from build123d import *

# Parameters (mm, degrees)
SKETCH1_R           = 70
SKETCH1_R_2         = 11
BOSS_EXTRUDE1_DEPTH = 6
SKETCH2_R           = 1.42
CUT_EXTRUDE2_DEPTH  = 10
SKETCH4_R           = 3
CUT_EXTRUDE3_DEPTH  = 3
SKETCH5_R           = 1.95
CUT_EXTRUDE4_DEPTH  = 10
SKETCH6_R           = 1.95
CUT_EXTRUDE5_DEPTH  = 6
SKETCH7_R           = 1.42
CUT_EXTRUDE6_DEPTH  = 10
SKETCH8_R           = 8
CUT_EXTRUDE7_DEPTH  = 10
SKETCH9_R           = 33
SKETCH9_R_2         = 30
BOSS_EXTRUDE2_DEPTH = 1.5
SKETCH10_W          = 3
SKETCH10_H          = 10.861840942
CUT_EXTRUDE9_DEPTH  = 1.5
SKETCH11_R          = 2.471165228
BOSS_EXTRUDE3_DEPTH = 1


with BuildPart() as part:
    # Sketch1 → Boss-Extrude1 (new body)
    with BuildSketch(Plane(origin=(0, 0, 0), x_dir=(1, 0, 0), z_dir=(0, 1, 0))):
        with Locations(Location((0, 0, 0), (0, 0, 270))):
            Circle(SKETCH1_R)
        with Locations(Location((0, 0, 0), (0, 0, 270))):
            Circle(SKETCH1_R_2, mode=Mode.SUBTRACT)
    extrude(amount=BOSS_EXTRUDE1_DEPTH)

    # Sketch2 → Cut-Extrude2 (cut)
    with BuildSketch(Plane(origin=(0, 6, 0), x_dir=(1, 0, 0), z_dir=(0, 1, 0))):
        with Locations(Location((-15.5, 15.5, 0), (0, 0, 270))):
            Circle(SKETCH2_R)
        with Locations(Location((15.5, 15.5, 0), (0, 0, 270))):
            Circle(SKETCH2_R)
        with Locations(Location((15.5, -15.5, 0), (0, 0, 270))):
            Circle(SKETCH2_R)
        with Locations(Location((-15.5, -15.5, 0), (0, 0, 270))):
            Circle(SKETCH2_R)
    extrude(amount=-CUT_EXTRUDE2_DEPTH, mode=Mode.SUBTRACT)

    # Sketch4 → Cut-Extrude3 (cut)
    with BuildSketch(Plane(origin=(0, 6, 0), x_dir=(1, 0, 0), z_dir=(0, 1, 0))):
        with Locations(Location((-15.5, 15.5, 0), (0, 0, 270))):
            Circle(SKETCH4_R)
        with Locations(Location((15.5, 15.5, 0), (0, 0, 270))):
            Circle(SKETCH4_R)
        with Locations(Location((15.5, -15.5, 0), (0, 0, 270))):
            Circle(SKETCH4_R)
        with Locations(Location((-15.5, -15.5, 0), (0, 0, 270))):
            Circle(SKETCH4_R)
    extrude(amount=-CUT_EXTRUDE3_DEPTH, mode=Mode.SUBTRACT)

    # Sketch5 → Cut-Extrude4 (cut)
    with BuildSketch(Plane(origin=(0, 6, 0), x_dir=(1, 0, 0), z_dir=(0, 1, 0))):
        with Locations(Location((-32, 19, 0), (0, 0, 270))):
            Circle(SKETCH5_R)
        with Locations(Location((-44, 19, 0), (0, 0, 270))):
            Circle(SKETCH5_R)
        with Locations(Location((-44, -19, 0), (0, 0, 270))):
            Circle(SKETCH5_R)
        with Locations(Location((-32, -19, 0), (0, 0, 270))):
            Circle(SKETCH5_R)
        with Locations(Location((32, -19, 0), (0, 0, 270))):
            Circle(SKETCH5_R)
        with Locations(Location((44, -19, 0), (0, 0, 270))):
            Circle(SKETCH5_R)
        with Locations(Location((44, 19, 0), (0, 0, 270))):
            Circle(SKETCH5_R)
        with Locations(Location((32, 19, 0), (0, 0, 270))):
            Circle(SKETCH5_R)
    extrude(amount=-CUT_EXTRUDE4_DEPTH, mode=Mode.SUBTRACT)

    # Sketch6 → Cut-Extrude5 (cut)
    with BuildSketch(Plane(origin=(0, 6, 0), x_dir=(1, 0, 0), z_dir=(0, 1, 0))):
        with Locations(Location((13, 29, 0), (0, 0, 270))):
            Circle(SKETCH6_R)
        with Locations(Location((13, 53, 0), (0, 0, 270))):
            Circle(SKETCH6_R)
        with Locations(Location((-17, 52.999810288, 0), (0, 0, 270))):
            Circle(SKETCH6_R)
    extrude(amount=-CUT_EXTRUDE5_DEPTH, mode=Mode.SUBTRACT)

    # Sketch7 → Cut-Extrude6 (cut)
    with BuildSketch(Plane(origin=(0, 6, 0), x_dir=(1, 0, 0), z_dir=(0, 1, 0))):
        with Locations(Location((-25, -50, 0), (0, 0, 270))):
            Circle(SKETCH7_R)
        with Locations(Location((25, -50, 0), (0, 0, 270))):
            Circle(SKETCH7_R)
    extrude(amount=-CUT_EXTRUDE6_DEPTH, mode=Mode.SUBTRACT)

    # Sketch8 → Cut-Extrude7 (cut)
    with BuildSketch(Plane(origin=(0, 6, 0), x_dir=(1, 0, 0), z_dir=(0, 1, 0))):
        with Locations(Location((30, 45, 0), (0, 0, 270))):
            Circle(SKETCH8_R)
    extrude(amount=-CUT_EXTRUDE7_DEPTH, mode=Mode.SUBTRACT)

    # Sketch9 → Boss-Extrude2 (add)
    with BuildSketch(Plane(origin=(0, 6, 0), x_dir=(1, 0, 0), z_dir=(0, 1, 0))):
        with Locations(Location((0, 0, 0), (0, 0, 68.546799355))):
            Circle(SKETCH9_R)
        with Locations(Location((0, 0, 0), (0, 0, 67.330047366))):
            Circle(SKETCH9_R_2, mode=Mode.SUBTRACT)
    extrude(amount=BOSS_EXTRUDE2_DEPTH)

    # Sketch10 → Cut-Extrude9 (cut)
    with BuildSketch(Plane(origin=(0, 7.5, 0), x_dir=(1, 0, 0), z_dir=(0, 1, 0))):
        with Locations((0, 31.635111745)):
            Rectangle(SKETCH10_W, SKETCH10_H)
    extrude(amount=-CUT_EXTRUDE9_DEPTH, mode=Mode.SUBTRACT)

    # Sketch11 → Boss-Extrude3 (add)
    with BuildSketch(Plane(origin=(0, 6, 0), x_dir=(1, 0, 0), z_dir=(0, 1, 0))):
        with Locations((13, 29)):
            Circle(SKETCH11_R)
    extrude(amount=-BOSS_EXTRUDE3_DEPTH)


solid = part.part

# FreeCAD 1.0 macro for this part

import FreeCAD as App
import Part
import Sketcher
from FreeCAD import Vector
Q = App.Units.Quantity


def add_polygon(sketch, points):
    """Adds a closed chain of lines whose ends are joined by coincident constraints."""
    first, n = sketch.GeometryCount, len(points)
    for a, b in zip(points, points[1:] + points[:1]):
        sketch.addGeometry(Part.LineSegment(App.Vector(*a, 0), App.Vector(*b, 0)), False)
    for i in range(n):
        sketch.addConstraint(Sketcher.Constraint("Coincident", first + i, 2, first + (i + 1) % n, 1))

doc = App.newDocument("Part")
body = doc.addObject("PartDesign::Body", "Body")

sketch1 = body.newObject("Sketcher::SketchObject", "Sketch")
sketch1.AttachmentSupport = (doc.getObject("XZ_Plane"), [""])
sketch1.MapMode = "FlatFace"
sketch1.addGeometry(Part.Circle(Vector(0, 0, 0), Vector(0, 0, 1), 70), False)
sketch1.addGeometry(Part.Circle(Vector(0, 0, 0), Vector(0, 0, 1), 11), False)
sketch1.addConstraint(Sketcher.Constraint("Coincident", 0, 3, -1, 1))
sketch1.addConstraint(Sketcher.Constraint("Coincident", 1, 3, -1, 1))
sketch1.addConstraint(Sketcher.Constraint("Diameter", 0, Q("140 mm")))
sketch1.addConstraint(Sketcher.Constraint("Diameter", 1, Q("22 mm")))
pad1 = body.newObject("PartDesign::Pad", "Pad")
pad1.Profile = sketch1
pad1.Length = 6
pad1.Reversed = True

sketch2 = body.newObject("Sketcher::SketchObject", "Sketch001")
sketch2.AttachmentSupport = (doc.getObject("XZ_Plane"), [""])
sketch2.MapMode = "FlatFace"
sketch2.AttachmentOffset = App.Placement(Vector(0, 0, -6), App.Rotation())
sketch2.addGeometry(Part.Circle(Vector(-15.5, -15.5, 0), Vector(0, 0, 1), 1.4), False)
sketch2.addGeometry(Part.Circle(Vector(15.5, -15.5, 0), Vector(0, 0, 1), 1.4), False)
sketch2.addGeometry(Part.Circle(Vector(15.5, 15.5, 0), Vector(0, 0, 1), 1.4), False)
sketch2.addGeometry(Part.Circle(Vector(-15.5, 15.5, 0), Vector(0, 0, 1), 1.4), False)
sketch2.addConstraint(Sketcher.Constraint("Equal", 0, 1))
sketch2.addConstraint(Sketcher.Constraint("Equal", 1, 2))
sketch2.addConstraint(Sketcher.Constraint("Equal", 2, 3))
sketch2.addConstraint(Sketcher.Constraint("Symmetric", 0, 3, 2, 3, -1, 1))
sketch2.addConstraint(Sketcher.Constraint("Symmetric", 1, 3, 3, 3, -1, 1))
sketch2.addConstraint(Sketcher.Constraint("Symmetric", 0, 3, 1, 3, -2))
sketch2.addConstraint(Sketcher.Constraint("Diameter", 0, Q("2.84 mm")))
sketch2.addConstraint(Sketcher.Constraint("DistanceX", 0, 3, 1, 3, Q("31 mm")))
sketch2.addConstraint(Sketcher.Constraint("DistanceY", 1, 3, 2, 3, Q("31 mm")))
pocket1 = body.newObject("PartDesign::Pocket", "Pocket")
pocket1.Profile = sketch2
pocket1.Length = 10
pocket1.Reversed = True

sketch3 = body.newObject("Sketcher::SketchObject", "Sketch002")
sketch3.AttachmentSupport = (doc.getObject("XZ_Plane"), [""])
sketch3.MapMode = "FlatFace"
sketch3.AttachmentOffset = App.Placement(Vector(0, 0, -6), App.Rotation())
sketch3.addGeometry(Part.Circle(Vector(-15.5, -15.5, 0), Vector(0, 0, 1), 3), False)
sketch3.addGeometry(Part.Circle(Vector(15.5, -15.5, 0), Vector(0, 0, 1), 3), False)
sketch3.addGeometry(Part.Circle(Vector(15.5, 15.5, 0), Vector(0, 0, 1), 3), False)
sketch3.addGeometry(Part.Circle(Vector(-15.5, 15.5, 0), Vector(0, 0, 1), 3), False)
sketch3.addConstraint(Sketcher.Constraint("Equal", 0, 1))
sketch3.addConstraint(Sketcher.Constraint("Equal", 1, 2))
sketch3.addConstraint(Sketcher.Constraint("Equal", 2, 3))
sketch3.addConstraint(Sketcher.Constraint("Symmetric", 0, 3, 2, 3, -1, 1))
sketch3.addConstraint(Sketcher.Constraint("Symmetric", 1, 3, 3, 3, -1, 1))
sketch3.addConstraint(Sketcher.Constraint("Symmetric", 0, 3, 1, 3, -2))
sketch3.addConstraint(Sketcher.Constraint("Diameter", 0, Q("6 mm")))
sketch3.addConstraint(Sketcher.Constraint("DistanceX", 0, 3, 1, 3, Q("31 mm")))
sketch3.addConstraint(Sketcher.Constraint("DistanceY", 1, 3, 2, 3, Q("31 mm")))
pocket2 = body.newObject("PartDesign::Pocket", "Pocket001")
pocket2.Profile = sketch3
pocket2.Length = 3
pocket2.Reversed = True

sketch4 = body.newObject("Sketcher::SketchObject", "Sketch003")
sketch4.AttachmentSupport = (doc.getObject("XZ_Plane"), [""])
sketch4.MapMode = "FlatFace"
sketch4.AttachmentOffset = App.Placement(Vector(0, 0, -6), App.Rotation())
sketch4.addGeometry(Part.Circle(Vector(-32, -19, 0), Vector(0, 0, 1), 1.9), False)
sketch4.addGeometry(Part.Circle(Vector(-44, -19, 0), Vector(0, 0, 1), 1.9), False)
sketch4.addGeometry(Part.Circle(Vector(-44, 19, 0), Vector(0, 0, 1), 1.9), False)
sketch4.addGeometry(Part.Circle(Vector(-32, 19, 0), Vector(0, 0, 1), 1.9), False)
sketch4.addGeometry(Part.Circle(Vector(32, 19, 0), Vector(0, 0, 1), 1.9), False)
sketch4.addGeometry(Part.Circle(Vector(44, 19, 0), Vector(0, 0, 1), 1.9), False)
sketch4.addGeometry(Part.Circle(Vector(44, -19, 0), Vector(0, 0, 1), 1.9), False)
sketch4.addGeometry(Part.Circle(Vector(32, -19, 0), Vector(0, 0, 1), 1.9), False)
sketch4.addConstraint(Sketcher.Constraint("Equal", 0, 1))
sketch4.addConstraint(Sketcher.Constraint("Equal", 1, 2))
sketch4.addConstraint(Sketcher.Constraint("Equal", 2, 3))
sketch4.addConstraint(Sketcher.Constraint("Equal", 3, 4))
sketch4.addConstraint(Sketcher.Constraint("Equal", 4, 5))
sketch4.addConstraint(Sketcher.Constraint("Equal", 5, 6))
sketch4.addConstraint(Sketcher.Constraint("Equal", 6, 7))
sketch4.addConstraint(Sketcher.Constraint("Symmetric", 0, 3, 4, 3, -1, 1))
sketch4.addConstraint(Sketcher.Constraint("Symmetric", 1, 3, 5, 3, -1, 1))
sketch4.addConstraint(Sketcher.Constraint("Symmetric", 2, 3, 6, 3, -1, 1))
sketch4.addConstraint(Sketcher.Constraint("Symmetric", 3, 3, 7, 3, -1, 1))
sketch4.addConstraint(Sketcher.Constraint("Symmetric", 3, 3, 4, 3, -2))
sketch4.addConstraint(Sketcher.Constraint("Symmetric", 2, 3, 5, 3, -2))
sketch4.addConstraint(Sketcher.Constraint("Horizontal", 0, 3, 1, 3))
sketch4.addConstraint(Sketcher.Constraint("Diameter", 0, Q("3.9 mm")))
sketch4.addConstraint(Sketcher.Constraint("DistanceX", 0, 3, -1, 1, Q("32 mm")))
sketch4.addConstraint(Sketcher.Constraint("DistanceY", 0, 3, -1, 1, Q("19 mm")))
sketch4.addConstraint(Sketcher.Constraint("DistanceX", 1, 3, -1, 1, Q("44 mm")))
pocket3 = body.newObject("PartDesign::Pocket", "Pocket002")
pocket3.Profile = sketch4
pocket3.Length = 10
pocket3.Reversed = True

sketch5 = body.newObject("Sketcher::SketchObject", "Sketch004")
sketch5.AttachmentSupport = (doc.getObject("XZ_Plane"), [""])
sketch5.MapMode = "FlatFace"
sketch5.AttachmentOffset = App.Placement(Vector(0, 0, -6), App.Rotation())
sketch5.addGeometry(Part.Circle(Vector(13, -29, 0), Vector(0, 0, 1), 1.9), False)
sketch5.addGeometry(Part.Circle(Vector(13, -53, 0), Vector(0, 0, 1), 1.9), False)
sketch5.addGeometry(Part.Circle(Vector(-17, -53, 0), Vector(0, 0, 1), 1.9), False)
sketch5.addConstraint(Sketcher.Constraint("Equal", 0, 1))
sketch5.addConstraint(Sketcher.Constraint("Equal", 1, 2))
sketch5.addConstraint(Sketcher.Constraint("Vertical", 0, 3, 1, 3))
sketch5.addConstraint(Sketcher.Constraint("Diameter", 0, Q("3.9 mm")))
sketch5.addConstraint(Sketcher.Constraint("DistanceX", -1, 1, 0, 3, Q("13 mm")))
sketch5.addConstraint(Sketcher.Constraint("DistanceY", 0, 3, -1, 1, Q("29 mm")))
sketch5.addConstraint(Sketcher.Constraint("DistanceY", 1, 3, -1, 1, Q("53 mm")))
sketch5.addConstraint(Sketcher.Constraint("DistanceX", 2, 3, -1, 1, Q("17 mm")))
sketch5.addConstraint(Sketcher.Constraint("DistanceY", 2, 3, -1, 1, Q("52.99981 mm")))
pocket4 = body.newObject("PartDesign::Pocket", "Pocket003")
pocket4.Profile = sketch5
pocket4.Length = 6
pocket4.Reversed = True

sketch6 = body.newObject("Sketcher::SketchObject", "Sketch005")
sketch6.AttachmentSupport = (doc.getObject("XZ_Plane"), [""])
sketch6.MapMode = "FlatFace"
sketch6.AttachmentOffset = App.Placement(Vector(0, 0, -6), App.Rotation())
sketch6.addGeometry(Part.Circle(Vector(-25, 50, 0), Vector(0, 0, 1), 1.4), False)
sketch6.addGeometry(Part.Circle(Vector(25, 50, 0), Vector(0, 0, 1), 1.4), False)
sketch6.addConstraint(Sketcher.Constraint("Equal", 0, 1))
sketch6.addConstraint(Sketcher.Constraint("Symmetric", 0, 3, 1, 3, -2))
sketch6.addConstraint(Sketcher.Constraint("Diameter", 0, Q("2.84 mm")))
sketch6.addConstraint(Sketcher.Constraint("DistanceX", 0, 3, -1, 1, Q("25 mm")))
sketch6.addConstraint(Sketcher.Constraint("DistanceY", -1, 1, 0, 3, Q("50 mm")))
pocket5 = body.newObject("PartDesign::Pocket", "Pocket004")
pocket5.Profile = sketch6
pocket5.Length = 10
pocket5.Reversed = True

sketch7 = body.newObject("Sketcher::SketchObject", "Sketch006")
sketch7.AttachmentSupport = (doc.getObject("XZ_Plane"), [""])
sketch7.MapMode = "FlatFace"
sketch7.AttachmentOffset = App.Placement(Vector(0, 0, -6), App.Rotation())
sketch7.addGeometry(Part.Circle(Vector(30, -45, 0), Vector(0, 0, 1), 8), False)
sketch7.addConstraint(Sketcher.Constraint("Diameter", 0, Q("16 mm")))
sketch7.addConstraint(Sketcher.Constraint("DistanceX", -1, 1, 0, 3, Q("30 mm")))
sketch7.addConstraint(Sketcher.Constraint("DistanceY", 0, 3, -1, 1, Q("45 mm")))
pocket6 = body.newObject("PartDesign::Pocket", "Pocket005")
pocket6.Profile = sketch7
pocket6.Length = 10
pocket6.Reversed = True

sketch8 = body.newObject("Sketcher::SketchObject", "Sketch007")
sketch8.AttachmentSupport = (doc.getObject("XZ_Plane"), [""])
sketch8.MapMode = "FlatFace"
sketch8.AttachmentOffset = App.Placement(Vector(0, 0, -6), App.Rotation())
sketch8.addGeometry(Part.Circle(Vector(0, 0, 0), Vector(0, 0, 1), 33), False)
sketch8.addGeometry(Part.Circle(Vector(0, 0, 0), Vector(0, 0, 1), 30), False)
sketch8.addConstraint(Sketcher.Constraint("Coincident", 0, 3, -1, 1))
sketch8.addConstraint(Sketcher.Constraint("Coincident", 1, 3, -1, 1))
sketch8.addConstraint(Sketcher.Constraint("Diameter", 0, Q("66 mm")))
sketch8.addConstraint(Sketcher.Constraint("Diameter", 1, Q("60 mm")))
pad2 = body.newObject("PartDesign::Pad", "Pad001")
pad2.Profile = sketch8
pad2.Length = 1.5
pad2.Reversed = True

sketch9 = body.newObject("Sketcher::SketchObject", "Sketch008")
sketch9.AttachmentSupport = (doc.getObject("XZ_Plane"), [""])
sketch9.MapMode = "FlatFace"
sketch9.AttachmentOffset = App.Placement(Vector(0, 0, -7.5), App.Rotation())
add_polygon(sketch9, [(-1.5, -37.1), (-1.5, -26.2), (1.5, -26.2), (1.5, -37.1)])
sketch9.addConstraint(Sketcher.Constraint("Vertical", 0))
sketch9.addConstraint(Sketcher.Constraint("Horizontal", 1))
sketch9.addConstraint(Sketcher.Constraint("Vertical", 2))
sketch9.addConstraint(Sketcher.Constraint("Horizontal", 3))
sketch9.addConstraint(Sketcher.Constraint("DistanceX", 1, 1, 1, 2, Q("3 mm")))
sketch9.addConstraint(Sketcher.Constraint("DistanceX", 0, 2, -1, 1, Q("1.5 mm")))
sketch9.addConstraint(Sketcher.Constraint("DistanceY", 0, 1, 0, 2, Q("10.861841 mm")))
sketch9.addConstraint(Sketcher.Constraint("DistanceY", 0, 2, -1, 1, Q("26.204191 mm")))
pocket7 = body.newObject("PartDesign::Pocket", "Pocket006")
pocket7.Profile = sketch9
pocket7.Length = 1.5
pocket7.Reversed = True

sketch10 = body.newObject("Sketcher::SketchObject", "Sketch009")
sketch10.AttachmentSupport = (doc.getObject("XZ_Plane"), [""])
sketch10.MapMode = "FlatFace"
sketch10.AttachmentOffset = App.Placement(Vector(0, 0, -6), App.Rotation())
sketch10.addGeometry(Part.Circle(Vector(13, -29, 0), Vector(0, 0, 1), 2.5), False)
sketch10.addConstraint(Sketcher.Constraint("DistanceX", -1, 1, 0, 3, Q("13 mm")))
sketch10.addConstraint(Sketcher.Constraint("DistanceY", 0, 3, -1, 1, Q("29 mm")))
sketch10.addConstraint(Sketcher.Constraint("Diameter", 0, Q("4.94233 mm")))
pad3 = body.newObject("PartDesign::Pad", "Pad002")
pad3.Profile = sketch10
pad3.Length = 1

doc.recompute()
